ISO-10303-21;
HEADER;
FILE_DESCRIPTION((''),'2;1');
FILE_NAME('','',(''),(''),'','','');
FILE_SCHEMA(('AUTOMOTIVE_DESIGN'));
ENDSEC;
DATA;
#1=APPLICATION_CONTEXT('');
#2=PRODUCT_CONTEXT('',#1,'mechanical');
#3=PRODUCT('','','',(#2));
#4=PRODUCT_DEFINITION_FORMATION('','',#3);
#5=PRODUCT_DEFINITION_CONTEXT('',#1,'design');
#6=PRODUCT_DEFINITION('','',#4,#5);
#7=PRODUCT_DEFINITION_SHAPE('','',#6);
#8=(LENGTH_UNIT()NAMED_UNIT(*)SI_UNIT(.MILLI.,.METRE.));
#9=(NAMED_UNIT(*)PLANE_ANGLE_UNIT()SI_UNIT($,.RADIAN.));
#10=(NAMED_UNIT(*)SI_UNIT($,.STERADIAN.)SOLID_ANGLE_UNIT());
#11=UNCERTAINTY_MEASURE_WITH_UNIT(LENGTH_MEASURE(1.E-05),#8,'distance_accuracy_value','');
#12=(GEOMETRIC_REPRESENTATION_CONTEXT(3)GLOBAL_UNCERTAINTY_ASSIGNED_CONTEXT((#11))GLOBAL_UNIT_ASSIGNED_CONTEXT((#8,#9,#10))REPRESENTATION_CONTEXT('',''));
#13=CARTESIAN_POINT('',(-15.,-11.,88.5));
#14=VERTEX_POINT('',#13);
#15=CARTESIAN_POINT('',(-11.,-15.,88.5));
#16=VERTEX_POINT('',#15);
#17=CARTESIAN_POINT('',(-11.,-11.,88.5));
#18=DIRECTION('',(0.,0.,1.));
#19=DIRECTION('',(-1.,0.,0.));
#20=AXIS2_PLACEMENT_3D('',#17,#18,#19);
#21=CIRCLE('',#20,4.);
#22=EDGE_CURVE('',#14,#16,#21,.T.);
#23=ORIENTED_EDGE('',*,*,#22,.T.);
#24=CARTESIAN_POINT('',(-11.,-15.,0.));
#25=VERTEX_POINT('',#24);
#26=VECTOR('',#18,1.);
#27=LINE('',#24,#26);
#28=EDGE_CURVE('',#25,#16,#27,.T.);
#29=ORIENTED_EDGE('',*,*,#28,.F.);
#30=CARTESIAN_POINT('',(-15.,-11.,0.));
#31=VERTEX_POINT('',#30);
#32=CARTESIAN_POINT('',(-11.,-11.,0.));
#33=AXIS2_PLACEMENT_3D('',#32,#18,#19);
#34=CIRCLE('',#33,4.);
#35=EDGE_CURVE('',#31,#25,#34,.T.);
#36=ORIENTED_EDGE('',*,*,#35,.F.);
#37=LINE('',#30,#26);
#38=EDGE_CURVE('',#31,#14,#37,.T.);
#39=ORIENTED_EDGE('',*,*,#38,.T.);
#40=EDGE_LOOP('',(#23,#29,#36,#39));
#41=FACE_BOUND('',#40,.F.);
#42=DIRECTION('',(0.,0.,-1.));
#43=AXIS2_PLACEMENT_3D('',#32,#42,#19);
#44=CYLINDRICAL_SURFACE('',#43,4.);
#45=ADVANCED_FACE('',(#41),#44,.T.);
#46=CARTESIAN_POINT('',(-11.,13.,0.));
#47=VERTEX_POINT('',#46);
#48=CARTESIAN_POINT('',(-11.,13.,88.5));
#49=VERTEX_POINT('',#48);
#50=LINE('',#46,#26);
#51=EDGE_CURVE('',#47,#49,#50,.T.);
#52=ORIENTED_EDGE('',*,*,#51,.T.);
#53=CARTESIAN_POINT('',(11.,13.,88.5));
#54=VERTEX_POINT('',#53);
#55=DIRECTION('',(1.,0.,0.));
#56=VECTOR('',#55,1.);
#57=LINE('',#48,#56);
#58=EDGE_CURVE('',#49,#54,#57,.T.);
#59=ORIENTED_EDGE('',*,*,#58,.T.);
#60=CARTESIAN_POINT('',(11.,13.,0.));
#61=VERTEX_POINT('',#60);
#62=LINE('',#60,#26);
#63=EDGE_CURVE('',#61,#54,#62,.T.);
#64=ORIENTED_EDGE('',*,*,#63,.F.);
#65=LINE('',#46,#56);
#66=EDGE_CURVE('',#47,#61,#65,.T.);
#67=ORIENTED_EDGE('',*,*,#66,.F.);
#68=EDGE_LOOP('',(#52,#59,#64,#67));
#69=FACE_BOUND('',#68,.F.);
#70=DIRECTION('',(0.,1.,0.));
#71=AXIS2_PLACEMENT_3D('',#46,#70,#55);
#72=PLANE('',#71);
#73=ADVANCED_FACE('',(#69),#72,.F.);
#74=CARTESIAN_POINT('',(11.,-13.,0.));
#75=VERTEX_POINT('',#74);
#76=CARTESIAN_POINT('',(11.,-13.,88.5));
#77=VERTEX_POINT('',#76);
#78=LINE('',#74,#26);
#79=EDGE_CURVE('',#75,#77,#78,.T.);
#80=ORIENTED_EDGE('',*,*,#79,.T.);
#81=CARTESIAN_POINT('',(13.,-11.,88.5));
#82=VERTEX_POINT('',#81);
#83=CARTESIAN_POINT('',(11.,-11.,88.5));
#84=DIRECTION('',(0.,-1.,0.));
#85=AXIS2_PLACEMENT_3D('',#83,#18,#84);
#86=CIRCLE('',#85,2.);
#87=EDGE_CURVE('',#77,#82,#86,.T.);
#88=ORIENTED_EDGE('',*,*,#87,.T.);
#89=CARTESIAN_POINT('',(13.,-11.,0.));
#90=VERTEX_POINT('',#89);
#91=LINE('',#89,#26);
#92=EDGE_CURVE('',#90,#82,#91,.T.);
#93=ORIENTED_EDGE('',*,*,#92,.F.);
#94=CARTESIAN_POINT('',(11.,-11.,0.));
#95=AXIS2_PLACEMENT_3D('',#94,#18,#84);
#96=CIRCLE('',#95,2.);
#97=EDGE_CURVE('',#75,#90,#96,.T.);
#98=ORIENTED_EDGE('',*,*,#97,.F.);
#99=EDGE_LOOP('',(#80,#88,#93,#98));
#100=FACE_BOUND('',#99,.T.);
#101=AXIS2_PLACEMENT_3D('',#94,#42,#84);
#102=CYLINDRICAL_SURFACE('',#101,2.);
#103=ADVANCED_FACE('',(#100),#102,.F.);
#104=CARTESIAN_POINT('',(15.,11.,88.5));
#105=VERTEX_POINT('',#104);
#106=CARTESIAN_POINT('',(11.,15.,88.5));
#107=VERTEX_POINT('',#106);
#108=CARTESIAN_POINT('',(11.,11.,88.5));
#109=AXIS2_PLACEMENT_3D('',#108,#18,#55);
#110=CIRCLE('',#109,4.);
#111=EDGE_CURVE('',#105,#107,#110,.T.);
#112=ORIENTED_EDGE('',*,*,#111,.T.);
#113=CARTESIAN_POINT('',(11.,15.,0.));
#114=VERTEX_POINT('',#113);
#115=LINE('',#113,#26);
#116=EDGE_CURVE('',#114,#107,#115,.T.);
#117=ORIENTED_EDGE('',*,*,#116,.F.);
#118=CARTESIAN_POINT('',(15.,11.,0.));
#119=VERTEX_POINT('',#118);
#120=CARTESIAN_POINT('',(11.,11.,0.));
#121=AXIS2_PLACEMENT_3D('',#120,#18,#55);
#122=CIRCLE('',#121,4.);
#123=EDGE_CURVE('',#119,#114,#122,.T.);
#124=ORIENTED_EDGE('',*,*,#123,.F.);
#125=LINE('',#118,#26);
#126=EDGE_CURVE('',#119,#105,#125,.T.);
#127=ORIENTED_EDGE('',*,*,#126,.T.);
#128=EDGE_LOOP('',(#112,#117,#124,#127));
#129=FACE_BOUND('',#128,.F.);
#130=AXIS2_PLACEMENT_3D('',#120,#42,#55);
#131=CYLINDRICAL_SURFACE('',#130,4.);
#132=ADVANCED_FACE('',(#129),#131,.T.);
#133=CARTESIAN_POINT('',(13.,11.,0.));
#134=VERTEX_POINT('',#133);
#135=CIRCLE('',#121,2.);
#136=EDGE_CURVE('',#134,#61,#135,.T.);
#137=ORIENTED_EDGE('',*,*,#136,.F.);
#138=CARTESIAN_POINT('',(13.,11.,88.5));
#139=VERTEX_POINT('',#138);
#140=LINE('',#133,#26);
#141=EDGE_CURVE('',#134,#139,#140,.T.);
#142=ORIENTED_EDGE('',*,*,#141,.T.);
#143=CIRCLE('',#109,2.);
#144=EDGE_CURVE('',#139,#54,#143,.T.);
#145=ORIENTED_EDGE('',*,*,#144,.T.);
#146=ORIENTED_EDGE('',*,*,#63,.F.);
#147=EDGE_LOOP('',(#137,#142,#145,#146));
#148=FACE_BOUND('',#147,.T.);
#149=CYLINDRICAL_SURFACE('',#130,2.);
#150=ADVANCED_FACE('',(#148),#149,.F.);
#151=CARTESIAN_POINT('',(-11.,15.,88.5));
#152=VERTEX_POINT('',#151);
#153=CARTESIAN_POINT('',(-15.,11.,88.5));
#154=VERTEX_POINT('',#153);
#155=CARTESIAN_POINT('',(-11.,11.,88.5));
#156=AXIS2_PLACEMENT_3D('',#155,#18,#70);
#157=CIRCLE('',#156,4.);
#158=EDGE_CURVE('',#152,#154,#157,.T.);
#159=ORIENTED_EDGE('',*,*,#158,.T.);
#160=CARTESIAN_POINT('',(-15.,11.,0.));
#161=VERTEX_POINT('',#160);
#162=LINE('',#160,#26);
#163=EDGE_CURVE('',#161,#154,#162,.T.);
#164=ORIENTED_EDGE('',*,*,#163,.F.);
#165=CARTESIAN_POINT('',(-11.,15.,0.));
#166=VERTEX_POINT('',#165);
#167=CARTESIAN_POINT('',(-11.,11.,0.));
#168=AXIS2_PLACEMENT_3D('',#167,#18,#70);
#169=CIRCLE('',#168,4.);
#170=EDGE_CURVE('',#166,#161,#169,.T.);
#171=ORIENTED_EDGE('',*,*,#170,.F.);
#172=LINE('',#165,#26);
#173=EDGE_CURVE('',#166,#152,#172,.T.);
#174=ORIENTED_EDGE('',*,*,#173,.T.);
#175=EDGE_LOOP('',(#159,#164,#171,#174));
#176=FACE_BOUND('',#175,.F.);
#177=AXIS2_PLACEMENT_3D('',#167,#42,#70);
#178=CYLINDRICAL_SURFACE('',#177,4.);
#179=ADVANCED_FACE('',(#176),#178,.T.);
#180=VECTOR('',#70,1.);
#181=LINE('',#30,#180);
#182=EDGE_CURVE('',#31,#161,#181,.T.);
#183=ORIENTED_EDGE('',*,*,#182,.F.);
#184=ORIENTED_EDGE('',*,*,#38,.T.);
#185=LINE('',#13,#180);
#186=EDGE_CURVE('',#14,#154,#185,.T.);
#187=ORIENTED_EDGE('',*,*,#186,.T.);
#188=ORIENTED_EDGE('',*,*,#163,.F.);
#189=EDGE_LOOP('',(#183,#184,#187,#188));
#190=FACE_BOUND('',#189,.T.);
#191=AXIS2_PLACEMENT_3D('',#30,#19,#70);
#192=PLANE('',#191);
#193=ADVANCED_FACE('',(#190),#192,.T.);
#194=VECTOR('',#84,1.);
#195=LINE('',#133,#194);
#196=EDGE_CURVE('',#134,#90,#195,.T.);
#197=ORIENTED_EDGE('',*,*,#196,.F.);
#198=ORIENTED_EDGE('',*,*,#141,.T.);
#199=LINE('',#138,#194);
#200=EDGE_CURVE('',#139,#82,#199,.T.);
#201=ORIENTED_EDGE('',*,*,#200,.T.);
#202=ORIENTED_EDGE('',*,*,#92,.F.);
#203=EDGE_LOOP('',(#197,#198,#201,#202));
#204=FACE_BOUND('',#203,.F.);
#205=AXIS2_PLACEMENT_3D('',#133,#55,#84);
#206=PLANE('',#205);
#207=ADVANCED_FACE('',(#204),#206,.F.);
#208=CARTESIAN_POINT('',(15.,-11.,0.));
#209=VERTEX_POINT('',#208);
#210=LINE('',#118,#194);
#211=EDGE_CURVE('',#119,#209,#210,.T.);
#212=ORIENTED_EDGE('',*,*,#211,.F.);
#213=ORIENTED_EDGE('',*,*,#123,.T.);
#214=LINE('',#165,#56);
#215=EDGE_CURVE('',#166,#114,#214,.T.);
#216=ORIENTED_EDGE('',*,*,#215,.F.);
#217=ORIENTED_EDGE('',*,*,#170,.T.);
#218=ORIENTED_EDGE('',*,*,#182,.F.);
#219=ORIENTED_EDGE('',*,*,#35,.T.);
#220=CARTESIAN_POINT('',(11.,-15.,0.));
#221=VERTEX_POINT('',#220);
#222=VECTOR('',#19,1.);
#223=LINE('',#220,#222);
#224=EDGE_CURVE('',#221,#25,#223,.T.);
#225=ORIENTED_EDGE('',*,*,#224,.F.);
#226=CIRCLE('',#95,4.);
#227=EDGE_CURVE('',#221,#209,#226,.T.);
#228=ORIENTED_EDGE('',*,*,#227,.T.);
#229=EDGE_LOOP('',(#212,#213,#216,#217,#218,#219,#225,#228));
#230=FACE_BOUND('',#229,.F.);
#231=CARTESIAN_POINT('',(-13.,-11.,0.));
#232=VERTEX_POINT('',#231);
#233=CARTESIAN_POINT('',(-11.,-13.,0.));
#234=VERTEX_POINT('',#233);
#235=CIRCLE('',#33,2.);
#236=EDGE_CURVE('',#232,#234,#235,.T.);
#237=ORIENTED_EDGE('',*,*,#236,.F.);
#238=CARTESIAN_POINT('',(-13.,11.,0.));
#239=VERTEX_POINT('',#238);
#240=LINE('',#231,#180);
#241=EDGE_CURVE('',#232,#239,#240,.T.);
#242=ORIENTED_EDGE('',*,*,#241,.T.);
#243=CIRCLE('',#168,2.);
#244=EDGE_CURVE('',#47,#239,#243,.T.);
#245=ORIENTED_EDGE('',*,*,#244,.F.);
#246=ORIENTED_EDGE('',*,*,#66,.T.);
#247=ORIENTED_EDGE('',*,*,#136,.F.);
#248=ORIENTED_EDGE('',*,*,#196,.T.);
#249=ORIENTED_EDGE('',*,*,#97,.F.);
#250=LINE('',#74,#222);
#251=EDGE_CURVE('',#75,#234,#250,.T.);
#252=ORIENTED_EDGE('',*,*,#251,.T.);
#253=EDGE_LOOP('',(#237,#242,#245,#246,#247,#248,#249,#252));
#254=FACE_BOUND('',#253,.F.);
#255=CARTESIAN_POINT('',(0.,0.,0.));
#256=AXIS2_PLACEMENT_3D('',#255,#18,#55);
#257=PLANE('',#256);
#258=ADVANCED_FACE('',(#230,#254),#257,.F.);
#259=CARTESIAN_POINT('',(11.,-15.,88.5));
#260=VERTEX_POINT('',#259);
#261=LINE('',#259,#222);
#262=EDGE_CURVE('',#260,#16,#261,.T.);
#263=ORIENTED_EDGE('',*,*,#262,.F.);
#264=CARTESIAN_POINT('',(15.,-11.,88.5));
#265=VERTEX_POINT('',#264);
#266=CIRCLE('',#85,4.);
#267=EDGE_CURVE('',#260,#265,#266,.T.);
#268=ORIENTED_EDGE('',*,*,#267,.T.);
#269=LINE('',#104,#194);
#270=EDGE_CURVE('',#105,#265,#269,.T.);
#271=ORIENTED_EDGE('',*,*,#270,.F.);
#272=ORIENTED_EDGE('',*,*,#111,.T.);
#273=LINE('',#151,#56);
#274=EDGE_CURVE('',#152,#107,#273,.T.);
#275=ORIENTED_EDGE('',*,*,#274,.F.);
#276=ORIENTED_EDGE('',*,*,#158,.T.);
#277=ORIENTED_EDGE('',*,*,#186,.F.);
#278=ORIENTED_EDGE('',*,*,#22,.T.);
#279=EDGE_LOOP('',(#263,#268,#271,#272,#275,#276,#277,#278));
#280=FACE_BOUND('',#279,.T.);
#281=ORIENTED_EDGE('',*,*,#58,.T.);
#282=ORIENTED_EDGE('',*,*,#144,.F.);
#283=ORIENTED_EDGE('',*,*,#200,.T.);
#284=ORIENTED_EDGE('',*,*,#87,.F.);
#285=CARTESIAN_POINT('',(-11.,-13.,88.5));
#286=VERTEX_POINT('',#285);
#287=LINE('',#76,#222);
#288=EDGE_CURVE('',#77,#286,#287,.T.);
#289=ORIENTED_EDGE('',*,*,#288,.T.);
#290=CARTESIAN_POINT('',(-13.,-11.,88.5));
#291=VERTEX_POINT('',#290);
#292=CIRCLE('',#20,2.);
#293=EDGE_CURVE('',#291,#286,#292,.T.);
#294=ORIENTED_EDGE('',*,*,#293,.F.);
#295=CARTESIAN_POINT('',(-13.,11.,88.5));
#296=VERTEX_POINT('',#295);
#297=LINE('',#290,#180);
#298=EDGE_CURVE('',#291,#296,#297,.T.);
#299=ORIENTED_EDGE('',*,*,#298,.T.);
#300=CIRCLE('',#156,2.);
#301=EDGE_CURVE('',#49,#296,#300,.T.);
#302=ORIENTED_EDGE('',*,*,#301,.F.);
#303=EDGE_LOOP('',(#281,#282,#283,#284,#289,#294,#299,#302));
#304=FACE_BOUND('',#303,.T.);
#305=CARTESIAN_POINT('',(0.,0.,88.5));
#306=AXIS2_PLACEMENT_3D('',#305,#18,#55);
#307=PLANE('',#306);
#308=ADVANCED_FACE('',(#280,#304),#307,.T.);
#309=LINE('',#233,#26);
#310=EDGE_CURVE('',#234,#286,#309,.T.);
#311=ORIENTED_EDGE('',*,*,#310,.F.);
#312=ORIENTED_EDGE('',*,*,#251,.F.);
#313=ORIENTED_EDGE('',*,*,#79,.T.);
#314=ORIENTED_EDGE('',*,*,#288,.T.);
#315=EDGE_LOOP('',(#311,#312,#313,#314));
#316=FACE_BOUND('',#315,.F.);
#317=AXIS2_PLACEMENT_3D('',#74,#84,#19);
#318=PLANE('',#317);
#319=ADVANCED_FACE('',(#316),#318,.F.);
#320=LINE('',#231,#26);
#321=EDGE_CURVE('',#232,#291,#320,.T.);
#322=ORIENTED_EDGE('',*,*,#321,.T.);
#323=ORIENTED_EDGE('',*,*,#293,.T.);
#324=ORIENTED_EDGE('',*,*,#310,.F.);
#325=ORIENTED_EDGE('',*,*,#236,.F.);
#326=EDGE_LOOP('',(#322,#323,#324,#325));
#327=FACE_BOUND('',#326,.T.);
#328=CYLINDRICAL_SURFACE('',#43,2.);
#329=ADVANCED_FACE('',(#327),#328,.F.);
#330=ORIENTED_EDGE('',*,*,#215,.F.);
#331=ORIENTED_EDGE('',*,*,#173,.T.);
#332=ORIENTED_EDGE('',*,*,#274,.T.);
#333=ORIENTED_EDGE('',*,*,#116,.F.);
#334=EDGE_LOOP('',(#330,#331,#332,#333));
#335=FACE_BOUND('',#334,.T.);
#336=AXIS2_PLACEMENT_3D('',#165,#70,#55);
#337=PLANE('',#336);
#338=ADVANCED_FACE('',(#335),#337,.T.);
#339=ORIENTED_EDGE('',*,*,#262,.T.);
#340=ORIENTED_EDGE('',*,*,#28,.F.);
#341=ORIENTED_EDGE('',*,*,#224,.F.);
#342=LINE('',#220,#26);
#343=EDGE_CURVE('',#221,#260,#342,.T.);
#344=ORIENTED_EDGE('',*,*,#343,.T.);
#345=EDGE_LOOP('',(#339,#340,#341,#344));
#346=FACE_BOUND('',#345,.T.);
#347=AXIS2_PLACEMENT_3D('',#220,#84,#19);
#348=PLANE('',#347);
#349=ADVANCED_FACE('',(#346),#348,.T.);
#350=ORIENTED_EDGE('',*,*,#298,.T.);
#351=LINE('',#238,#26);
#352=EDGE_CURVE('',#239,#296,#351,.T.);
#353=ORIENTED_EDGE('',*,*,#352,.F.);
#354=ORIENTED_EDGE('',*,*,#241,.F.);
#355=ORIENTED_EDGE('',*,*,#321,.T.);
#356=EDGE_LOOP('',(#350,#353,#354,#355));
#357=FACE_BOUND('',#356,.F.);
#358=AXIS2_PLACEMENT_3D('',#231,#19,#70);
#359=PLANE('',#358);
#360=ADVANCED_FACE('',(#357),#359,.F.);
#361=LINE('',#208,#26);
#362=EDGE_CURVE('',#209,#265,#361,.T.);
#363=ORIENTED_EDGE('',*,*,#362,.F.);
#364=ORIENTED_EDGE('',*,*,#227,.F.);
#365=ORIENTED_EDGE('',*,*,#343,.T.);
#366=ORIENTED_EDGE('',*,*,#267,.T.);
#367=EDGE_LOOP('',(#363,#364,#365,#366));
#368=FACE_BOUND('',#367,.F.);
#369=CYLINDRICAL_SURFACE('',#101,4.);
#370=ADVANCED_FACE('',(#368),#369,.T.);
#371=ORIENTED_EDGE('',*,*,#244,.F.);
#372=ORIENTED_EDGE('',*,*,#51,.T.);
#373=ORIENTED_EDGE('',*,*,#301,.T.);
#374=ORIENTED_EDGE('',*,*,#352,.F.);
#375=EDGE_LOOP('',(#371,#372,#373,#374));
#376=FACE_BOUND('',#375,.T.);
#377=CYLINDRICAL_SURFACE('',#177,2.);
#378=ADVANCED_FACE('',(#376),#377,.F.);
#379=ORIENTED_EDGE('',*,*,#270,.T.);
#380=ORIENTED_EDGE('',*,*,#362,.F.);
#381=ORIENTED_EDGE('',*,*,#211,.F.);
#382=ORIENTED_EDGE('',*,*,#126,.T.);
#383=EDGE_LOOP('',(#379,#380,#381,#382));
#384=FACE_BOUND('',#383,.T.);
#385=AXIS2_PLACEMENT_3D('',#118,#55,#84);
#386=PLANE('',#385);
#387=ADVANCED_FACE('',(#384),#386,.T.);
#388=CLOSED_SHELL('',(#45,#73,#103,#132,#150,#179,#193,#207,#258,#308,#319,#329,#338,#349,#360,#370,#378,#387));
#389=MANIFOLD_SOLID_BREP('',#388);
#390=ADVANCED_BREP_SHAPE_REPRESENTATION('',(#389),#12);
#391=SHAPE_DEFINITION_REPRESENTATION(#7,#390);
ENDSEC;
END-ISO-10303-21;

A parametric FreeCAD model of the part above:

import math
import FreeCAD as App
import Part
import Sketcher
from FreeCAD import Vector
Q = App.Units.Quantity

doc = App.newDocument("Part")
body = doc.addObject("PartDesign::Body", "Body")

sketch1 = body.newObject("Sketcher::SketchObject", "Sketch")
sketch1.AttachmentSupport = (doc.getObject("XY_Plane"), [""])
sketch1.MapMode = "FlatFace"
sketch1.addGeometry([
    Part.LineSegment(Vector(-15, 11, 0), Vector(-15, -11, 0)),
    Part.ArcOfCircle(Part.Circle(Vector(-11, -11, 0), Vector(0, 0, 1), 4), math.radians(180), math.radians(270)),
    Part.LineSegment(Vector(-11, -15, 0), Vector(11, -15, 0)),
    Part.ArcOfCircle(Part.Circle(Vector(11, -11, 0), Vector(0, 0, 1), 4), math.radians(-90), math.radians(0)),
    Part.LineSegment(Vector(15, -11, 0), Vector(15, 11, 0)),
    Part.ArcOfCircle(Part.Circle(Vector(11, 11, 0), Vector(0, 0, 1), 4), math.radians(0), math.radians(90)),
    Part.LineSegment(Vector(11, 15, 0), Vector(-11, 15, 0)),
    Part.ArcOfCircle(Part.Circle(Vector(-11, 11, 0), Vector(0, 0, 1), 4), math.radians(90), math.radians(180)),
    Part.ArcOfCircle(Part.Circle(Vector(-11, 11, 0), Vector(0, 0, 1), 2), math.radians(90), math.radians(180)),
    Part.LineSegment(Vector(-11, 13, 0), Vector(11, 13, 0)),
    Part.ArcOfCircle(Part.Circle(Vector(11, 11, 0), Vector(0, 0, 1), 2), math.radians(0), math.radians(90)),
    Part.LineSegment(Vector(13, 11, 0), Vector(13, -11, 0)),
    Part.ArcOfCircle(Part.Circle(Vector(11, -11, 0), Vector(0, 0, 1), 2), math.radians(-90), math.radians(0)),
    Part.LineSegment(Vector(11, -13, 0), Vector(-11, -13, 0)),
    Part.ArcOfCircle(Part.Circle(Vector(-11, -11, 0), Vector(0, 0, 1), 2), math.radians(180), math.radians(270)),
    Part.LineSegment(Vector(-13, -11, 0), Vector(-13, 11, 0)),
], False)
sketch1.addConstraint([
    Sketcher.Constraint("Tangent", 0, 2, 1, 1),
    Sketcher.Constraint("Tangent", 1, 2, 2, 1),
    Sketcher.Constraint("Tangent", 2, 2, 3, 1),
    Sketcher.Constraint("Tangent", 3, 2, 4, 1),
    Sketcher.Constraint("Tangent", 4, 2, 5, 1),
    Sketcher.Constraint("Tangent", 5, 2, 6, 1),
    Sketcher.Constraint("Tangent", 6, 2, 7, 1),
    Sketcher.Constraint("Tangent", 7, 2, 0, 1),
    Sketcher.Constraint("Tangent", 8, 1, 9, 1),
    Sketcher.Constraint("Tangent", 9, 2, 10, 2),
    Sketcher.Constraint("Tangent", 10, 1, 11, 1),
    Sketcher.Constraint("Tangent", 11, 2, 12, 2),
    Sketcher.Constraint("Tangent", 12, 1, 13, 1),
    Sketcher.Constraint("Tangent", 13, 2, 14, 2),
    Sketcher.Constraint("Tangent", 14, 1, 15, 1),
    Sketcher.Constraint("Tangent", 15, 2, 8, 2),
    Sketcher.Constraint("Vertical", 0),
    Sketcher.Constraint("Horizontal", 2),
    Sketcher.Constraint("Vertical", 4),
    Sketcher.Constraint("Horizontal", 6),
    Sketcher.Constraint("Horizontal", 9),
    Sketcher.Constraint("Vertical", 11),
    Sketcher.Constraint("Horizontal", 13),
    Sketcher.Constraint("Vertical", 15),
    Sketcher.Constraint("Coincident", 8, 3, 7, 3),
    Sketcher.Constraint("Coincident", 10, 3, 5, 3),
    Sketcher.Constraint("Coincident", 12, 3, 3, 3),
    Sketcher.Constraint("Equal", 1, 3),
    Sketcher.Constraint("Equal", 3, 5),
    Sketcher.Constraint("Equal", 5, 7),
    Sketcher.Constraint("Equal", 12, 14),
    Sketcher.Constraint("Symmetric", 1, 3, 5, 3, -1, 1),
    Sketcher.Constraint("Equal", 13, 0),
    Sketcher.Constraint("Radius", 1, Q("4 mm")),
    Sketcher.Constraint("Radius", 8, Q("2 mm")),
    Sketcher.Constraint("DistanceX", 0, 2, -1, 1, Q("15 mm")),
])
pad1 = body.newObject("PartDesign::Pad", "Pad")
pad1.Profile = sketch1
pad1.Length = 88.5

doc.recompute()
